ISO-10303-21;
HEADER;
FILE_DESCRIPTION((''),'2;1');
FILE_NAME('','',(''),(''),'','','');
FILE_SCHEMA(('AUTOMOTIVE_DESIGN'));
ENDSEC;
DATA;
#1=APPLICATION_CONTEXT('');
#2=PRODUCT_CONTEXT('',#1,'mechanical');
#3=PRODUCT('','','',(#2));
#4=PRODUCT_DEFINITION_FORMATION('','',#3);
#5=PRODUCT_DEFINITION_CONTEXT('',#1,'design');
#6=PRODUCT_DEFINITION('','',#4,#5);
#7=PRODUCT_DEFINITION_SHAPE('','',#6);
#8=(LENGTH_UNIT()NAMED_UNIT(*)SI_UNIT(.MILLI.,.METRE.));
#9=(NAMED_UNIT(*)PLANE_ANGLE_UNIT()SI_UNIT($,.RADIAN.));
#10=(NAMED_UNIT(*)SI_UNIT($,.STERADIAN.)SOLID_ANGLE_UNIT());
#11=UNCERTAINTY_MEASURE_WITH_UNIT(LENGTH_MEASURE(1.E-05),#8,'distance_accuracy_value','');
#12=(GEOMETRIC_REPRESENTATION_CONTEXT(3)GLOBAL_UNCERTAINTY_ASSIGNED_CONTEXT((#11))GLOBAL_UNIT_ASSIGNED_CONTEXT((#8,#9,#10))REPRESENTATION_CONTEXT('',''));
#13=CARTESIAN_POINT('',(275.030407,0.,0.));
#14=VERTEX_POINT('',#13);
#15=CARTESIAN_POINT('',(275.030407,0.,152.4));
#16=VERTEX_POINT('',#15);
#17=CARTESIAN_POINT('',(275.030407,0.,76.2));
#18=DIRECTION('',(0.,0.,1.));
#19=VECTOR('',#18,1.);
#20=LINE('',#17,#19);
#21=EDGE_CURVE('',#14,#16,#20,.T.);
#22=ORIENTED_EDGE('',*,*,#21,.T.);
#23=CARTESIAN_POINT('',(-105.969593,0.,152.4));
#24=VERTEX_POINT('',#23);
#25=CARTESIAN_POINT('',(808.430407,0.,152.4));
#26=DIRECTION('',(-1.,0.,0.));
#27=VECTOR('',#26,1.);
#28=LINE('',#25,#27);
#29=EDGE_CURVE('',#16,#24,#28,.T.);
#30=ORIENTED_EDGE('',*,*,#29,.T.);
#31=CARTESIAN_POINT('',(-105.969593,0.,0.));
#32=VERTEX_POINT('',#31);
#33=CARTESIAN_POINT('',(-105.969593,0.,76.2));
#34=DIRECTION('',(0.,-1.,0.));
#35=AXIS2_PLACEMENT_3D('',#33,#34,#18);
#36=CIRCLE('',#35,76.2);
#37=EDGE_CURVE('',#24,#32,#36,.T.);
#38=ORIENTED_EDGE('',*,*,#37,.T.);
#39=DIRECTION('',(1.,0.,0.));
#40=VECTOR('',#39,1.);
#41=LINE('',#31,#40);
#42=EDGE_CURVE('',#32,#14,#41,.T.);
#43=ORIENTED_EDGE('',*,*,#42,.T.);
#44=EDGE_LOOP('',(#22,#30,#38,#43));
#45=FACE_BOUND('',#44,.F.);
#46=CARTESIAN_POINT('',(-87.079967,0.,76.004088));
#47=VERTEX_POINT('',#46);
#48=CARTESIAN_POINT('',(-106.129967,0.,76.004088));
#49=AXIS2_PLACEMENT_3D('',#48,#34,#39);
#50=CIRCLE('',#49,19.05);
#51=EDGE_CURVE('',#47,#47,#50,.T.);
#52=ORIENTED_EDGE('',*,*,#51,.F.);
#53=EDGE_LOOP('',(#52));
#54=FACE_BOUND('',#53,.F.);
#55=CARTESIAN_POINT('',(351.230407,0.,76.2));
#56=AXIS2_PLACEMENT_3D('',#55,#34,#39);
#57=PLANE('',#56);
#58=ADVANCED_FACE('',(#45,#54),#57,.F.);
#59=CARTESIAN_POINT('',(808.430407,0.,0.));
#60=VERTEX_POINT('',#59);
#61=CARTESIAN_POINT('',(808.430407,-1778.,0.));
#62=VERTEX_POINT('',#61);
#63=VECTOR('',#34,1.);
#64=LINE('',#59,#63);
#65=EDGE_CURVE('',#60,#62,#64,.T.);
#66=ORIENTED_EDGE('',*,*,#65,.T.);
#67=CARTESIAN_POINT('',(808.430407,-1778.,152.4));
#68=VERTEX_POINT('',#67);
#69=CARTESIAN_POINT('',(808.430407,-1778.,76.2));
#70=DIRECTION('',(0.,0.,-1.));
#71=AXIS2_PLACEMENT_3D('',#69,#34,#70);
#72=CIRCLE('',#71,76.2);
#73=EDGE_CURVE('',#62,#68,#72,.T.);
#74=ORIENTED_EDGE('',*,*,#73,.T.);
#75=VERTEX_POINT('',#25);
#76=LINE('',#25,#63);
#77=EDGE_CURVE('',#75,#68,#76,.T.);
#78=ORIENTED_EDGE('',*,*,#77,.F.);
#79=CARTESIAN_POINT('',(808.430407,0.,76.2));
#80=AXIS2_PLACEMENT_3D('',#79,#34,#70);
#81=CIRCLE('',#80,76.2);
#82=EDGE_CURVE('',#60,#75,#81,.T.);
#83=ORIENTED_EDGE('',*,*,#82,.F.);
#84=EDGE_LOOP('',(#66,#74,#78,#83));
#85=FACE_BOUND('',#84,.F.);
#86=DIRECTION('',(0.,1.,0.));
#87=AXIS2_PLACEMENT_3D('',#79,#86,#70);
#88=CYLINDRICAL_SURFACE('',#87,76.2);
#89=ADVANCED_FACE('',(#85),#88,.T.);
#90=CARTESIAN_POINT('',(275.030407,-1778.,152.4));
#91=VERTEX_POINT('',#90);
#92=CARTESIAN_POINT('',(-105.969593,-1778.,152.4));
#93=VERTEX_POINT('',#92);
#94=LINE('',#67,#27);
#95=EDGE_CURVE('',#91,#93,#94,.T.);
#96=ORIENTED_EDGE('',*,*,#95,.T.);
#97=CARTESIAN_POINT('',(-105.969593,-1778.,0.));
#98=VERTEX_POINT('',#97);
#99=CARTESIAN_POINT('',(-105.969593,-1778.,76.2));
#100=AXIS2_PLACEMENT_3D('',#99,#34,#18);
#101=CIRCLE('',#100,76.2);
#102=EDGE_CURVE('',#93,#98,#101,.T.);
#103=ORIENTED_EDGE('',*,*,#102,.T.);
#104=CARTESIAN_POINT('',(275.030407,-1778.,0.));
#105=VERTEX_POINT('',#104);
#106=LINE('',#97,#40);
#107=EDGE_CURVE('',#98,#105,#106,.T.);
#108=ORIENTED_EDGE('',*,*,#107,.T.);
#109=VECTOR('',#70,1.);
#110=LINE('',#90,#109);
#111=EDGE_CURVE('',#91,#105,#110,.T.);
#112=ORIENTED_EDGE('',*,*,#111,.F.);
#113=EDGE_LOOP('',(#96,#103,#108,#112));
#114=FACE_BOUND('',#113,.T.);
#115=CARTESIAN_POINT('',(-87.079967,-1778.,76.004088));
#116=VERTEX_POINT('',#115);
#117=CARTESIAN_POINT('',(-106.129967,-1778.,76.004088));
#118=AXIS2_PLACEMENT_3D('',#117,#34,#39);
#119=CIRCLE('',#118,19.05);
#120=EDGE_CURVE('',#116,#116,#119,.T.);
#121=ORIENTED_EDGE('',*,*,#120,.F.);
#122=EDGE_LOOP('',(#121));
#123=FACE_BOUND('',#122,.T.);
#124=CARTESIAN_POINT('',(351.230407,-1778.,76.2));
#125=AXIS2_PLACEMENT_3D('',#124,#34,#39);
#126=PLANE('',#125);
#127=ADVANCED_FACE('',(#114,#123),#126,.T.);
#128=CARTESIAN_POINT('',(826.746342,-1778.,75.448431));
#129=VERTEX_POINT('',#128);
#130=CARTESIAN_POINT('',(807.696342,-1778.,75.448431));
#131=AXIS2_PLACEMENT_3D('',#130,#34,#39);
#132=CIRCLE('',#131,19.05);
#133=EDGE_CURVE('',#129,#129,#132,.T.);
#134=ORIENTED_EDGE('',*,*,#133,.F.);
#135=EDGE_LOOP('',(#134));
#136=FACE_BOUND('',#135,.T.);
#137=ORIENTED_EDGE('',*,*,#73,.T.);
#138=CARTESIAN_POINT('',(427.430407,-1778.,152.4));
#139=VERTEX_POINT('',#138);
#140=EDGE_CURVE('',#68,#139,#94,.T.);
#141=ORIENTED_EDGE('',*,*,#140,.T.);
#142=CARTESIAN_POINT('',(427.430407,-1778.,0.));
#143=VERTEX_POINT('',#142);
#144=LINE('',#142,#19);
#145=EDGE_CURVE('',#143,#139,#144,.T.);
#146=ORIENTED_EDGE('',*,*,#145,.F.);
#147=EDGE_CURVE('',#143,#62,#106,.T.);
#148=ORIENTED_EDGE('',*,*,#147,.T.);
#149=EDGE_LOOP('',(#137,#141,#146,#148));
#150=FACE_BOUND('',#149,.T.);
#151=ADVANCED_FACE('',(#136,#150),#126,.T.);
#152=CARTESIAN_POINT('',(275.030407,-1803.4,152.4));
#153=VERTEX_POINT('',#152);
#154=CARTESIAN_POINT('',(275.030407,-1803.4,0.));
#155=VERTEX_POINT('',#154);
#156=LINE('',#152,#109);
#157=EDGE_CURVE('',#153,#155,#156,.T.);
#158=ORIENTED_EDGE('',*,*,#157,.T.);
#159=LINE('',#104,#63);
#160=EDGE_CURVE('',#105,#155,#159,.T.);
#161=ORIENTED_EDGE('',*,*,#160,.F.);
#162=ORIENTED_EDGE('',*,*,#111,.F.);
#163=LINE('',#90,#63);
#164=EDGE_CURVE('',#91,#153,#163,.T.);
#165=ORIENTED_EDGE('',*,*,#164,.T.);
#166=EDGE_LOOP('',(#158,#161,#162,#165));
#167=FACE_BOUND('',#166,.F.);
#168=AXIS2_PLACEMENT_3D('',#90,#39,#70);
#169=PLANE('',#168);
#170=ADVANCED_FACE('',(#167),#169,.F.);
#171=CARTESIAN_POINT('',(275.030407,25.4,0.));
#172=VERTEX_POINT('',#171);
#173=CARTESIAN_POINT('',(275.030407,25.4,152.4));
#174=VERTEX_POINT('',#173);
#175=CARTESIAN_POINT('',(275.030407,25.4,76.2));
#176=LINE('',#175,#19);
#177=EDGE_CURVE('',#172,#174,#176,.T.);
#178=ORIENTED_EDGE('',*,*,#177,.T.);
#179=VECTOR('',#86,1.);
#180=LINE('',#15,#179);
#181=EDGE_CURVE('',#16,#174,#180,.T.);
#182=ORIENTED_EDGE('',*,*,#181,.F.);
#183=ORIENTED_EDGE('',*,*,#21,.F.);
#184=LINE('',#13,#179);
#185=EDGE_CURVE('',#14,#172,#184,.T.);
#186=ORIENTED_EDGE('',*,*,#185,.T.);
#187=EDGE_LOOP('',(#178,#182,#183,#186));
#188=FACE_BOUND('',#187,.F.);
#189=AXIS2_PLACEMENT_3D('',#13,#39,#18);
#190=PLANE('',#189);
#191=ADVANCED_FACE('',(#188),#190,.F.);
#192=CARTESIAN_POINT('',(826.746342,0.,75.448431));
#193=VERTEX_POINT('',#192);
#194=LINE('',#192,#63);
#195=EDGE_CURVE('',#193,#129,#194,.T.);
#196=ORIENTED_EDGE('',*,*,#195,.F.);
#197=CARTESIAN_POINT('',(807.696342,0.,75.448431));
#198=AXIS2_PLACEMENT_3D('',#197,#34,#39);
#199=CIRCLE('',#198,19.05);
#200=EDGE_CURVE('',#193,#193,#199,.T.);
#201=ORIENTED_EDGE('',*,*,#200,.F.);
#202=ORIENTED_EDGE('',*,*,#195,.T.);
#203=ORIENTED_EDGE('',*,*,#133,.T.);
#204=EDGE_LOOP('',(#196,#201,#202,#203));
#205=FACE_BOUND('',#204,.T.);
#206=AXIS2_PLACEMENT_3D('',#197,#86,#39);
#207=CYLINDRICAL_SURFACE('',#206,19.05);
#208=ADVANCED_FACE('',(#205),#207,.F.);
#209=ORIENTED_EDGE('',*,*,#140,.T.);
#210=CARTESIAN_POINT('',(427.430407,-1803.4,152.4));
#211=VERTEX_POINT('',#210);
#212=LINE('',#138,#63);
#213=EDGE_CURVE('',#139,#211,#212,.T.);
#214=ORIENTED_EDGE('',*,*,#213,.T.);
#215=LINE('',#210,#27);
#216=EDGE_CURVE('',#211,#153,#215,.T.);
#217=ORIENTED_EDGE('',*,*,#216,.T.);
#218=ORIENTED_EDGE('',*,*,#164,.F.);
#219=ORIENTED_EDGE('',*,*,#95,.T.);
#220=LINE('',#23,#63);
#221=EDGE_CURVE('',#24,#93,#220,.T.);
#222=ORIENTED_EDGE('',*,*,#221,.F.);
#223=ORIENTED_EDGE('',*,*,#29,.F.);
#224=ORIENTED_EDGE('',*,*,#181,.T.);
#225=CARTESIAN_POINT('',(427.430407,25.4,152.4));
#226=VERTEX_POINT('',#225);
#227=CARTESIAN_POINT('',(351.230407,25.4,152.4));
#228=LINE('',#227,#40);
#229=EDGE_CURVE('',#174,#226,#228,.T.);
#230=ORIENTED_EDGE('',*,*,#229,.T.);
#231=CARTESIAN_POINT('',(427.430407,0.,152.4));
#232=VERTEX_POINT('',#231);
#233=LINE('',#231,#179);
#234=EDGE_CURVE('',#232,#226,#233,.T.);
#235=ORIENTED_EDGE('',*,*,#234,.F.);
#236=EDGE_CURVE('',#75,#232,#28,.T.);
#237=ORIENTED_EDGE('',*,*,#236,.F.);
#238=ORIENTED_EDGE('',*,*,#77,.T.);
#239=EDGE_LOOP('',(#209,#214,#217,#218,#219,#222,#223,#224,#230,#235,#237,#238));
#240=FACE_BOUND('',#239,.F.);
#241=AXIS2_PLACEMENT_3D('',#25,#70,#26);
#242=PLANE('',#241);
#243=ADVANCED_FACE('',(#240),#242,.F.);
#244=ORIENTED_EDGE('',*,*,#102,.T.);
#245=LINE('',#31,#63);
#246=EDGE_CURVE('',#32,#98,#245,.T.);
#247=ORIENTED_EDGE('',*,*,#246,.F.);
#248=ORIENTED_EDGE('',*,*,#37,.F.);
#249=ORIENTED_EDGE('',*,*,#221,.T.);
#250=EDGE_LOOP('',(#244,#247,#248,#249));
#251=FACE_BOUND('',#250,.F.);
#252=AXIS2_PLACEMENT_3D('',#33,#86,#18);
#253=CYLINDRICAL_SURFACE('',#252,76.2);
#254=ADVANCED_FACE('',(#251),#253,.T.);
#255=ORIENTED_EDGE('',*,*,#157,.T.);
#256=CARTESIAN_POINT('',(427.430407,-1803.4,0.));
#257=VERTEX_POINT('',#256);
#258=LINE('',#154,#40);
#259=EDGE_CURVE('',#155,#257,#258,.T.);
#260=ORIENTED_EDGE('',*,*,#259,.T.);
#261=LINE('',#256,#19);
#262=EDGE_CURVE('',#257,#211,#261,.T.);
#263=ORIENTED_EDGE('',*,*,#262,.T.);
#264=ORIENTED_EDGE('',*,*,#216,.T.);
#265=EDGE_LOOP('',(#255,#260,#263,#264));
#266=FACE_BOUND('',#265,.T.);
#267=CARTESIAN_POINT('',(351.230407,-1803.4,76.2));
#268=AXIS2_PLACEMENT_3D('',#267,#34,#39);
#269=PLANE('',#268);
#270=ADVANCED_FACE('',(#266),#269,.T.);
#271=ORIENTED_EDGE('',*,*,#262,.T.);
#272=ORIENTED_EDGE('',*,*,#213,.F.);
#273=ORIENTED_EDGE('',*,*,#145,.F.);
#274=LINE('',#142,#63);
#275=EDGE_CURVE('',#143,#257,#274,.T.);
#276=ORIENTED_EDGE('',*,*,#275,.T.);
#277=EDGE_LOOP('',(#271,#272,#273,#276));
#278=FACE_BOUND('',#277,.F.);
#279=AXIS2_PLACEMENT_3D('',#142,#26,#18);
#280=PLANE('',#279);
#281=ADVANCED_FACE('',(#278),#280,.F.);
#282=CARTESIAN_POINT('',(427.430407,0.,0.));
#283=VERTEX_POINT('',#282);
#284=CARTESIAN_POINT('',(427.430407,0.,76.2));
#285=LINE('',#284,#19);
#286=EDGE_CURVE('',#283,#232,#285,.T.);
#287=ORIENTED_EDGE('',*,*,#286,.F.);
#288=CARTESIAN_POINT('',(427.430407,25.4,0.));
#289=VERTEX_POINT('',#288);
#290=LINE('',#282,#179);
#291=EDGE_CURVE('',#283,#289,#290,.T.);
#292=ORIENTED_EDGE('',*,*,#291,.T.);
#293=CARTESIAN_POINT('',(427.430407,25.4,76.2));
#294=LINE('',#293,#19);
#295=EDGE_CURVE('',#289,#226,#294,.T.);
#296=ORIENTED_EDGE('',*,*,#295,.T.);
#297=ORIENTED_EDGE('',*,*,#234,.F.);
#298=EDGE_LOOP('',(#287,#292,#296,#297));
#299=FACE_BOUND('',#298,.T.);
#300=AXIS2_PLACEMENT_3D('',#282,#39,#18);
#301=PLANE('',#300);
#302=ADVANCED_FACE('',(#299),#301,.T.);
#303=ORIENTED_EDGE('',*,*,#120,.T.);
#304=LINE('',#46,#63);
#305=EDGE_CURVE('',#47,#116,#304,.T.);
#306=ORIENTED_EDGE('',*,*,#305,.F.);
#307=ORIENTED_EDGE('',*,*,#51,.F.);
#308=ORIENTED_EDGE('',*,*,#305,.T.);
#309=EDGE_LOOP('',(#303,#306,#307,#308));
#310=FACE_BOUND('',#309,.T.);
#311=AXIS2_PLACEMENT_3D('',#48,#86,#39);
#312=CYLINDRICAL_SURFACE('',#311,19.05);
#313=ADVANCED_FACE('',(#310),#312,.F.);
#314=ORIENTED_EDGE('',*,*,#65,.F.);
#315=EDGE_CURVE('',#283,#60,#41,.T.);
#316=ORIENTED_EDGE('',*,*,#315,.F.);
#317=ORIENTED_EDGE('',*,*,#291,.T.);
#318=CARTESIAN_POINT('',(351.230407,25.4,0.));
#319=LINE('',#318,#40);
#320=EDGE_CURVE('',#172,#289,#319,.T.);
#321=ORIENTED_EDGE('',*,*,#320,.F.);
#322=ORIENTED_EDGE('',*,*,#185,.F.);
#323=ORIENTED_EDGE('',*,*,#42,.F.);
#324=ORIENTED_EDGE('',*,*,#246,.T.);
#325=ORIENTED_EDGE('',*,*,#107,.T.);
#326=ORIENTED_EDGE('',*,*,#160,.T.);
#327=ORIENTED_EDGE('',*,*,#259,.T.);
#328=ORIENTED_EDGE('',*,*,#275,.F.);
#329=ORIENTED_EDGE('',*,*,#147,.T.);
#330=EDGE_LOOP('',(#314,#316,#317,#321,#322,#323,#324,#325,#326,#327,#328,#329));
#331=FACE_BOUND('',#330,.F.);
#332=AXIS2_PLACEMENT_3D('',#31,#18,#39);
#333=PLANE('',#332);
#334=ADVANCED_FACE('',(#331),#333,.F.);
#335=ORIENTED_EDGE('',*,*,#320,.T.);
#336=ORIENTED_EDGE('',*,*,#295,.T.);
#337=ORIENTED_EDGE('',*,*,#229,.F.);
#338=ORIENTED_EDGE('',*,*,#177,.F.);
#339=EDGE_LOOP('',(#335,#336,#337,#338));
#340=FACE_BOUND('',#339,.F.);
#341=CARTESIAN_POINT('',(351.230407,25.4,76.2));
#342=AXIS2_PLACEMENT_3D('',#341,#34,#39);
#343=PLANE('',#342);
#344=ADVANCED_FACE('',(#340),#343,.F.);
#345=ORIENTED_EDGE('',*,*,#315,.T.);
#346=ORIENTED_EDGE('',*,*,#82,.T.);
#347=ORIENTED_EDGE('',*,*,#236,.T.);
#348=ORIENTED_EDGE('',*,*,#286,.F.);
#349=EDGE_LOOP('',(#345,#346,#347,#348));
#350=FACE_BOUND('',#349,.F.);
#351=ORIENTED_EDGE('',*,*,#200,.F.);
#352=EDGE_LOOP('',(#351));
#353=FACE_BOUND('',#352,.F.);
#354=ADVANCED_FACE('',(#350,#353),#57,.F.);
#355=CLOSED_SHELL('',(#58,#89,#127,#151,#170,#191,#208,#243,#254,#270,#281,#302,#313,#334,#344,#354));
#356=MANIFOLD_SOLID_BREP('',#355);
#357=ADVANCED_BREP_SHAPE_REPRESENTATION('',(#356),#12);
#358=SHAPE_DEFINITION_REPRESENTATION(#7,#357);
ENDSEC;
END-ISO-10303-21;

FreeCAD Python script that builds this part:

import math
import FreeCAD as App
import Part
import Sketcher
from FreeCAD import Vector
Q = App.Units.Quantity


def add_polygon(sketch, points):
    """Adds a closed chain of lines whose ends are joined by coincident constraints."""
    first, n = sketch.GeometryCount, len(points)
    for a, b in zip(points, points[1:] + points[:1]):
        sketch.addGeometry(Part.LineSegment(App.Vector(*a, 0), App.Vector(*b, 0)), False)
    for i in range(n):
        sketch.addConstraint(Sketcher.Constraint("Coincident", first + i, 2, first + (i + 1) % n, 1))

doc = App.newDocument("Part")
body = doc.addObject("PartDesign::Body", "Body")

sketch1 = doc.addObject("Sketcher::SketchObject", "Sketch")
body.addObject(sketch1)
sketch1.AttachmentSupport = (doc.XZ_Plane, [""])
sketch1.MapMode = "FlatFace"
sketch1.addGeometry([
    Part.ArcOfCircle(Part.Circle(Vector(808, 76, 0), Vector(0, 0, 1), 76), math.radians(-90), math.radians(90)),
    Part.LineSegment(Vector(808, 152, 0), Vector(-106, 152, 0)),
    Part.ArcOfCircle(Part.Circle(Vector(-106, 76, 0), Vector(0, 0, 1), 76), math.radians(90), math.radians(270)),
    Part.LineSegment(Vector(-106, 0, 0), Vector(808, 0, 0)),
    Part.Circle(Vector(808, 75, 0), Vector(0, 0, 1), 19),
    Part.Circle(Vector(-106, 76, 0), Vector(0, 0, 1), 19),
], False)
sketch1.addConstraint([
    Sketcher.Constraint("Tangent", 0, 2, 1, 1),
    Sketcher.Constraint("Tangent", 1, 2, 2, 1),
    Sketcher.Constraint("Tangent", 2, 2, 3, 1),
    Sketcher.Constraint("Tangent", 3, 2, 0, 1),
    Sketcher.Constraint("Horizontal", 1),
    Sketcher.Constraint("Horizontal", 3),
    Sketcher.Constraint("Equal", 4, 5),
    Sketcher.Constraint("PointOnObject", 2, 2, -1),
    Sketcher.Constraint("Radius", 0, Q("3 in")),
    Sketcher.Constraint("Diameter", 4, Q("1.5 in")),
    Sketcher.Constraint("DistanceX", 1, 2, 1, 1, Q("36 in")),
    Sketcher.Constraint("DistanceX", 4, 3, 0, 3, Q("0.0289002 in")),
    Sketcher.Constraint("DistanceX", -1, 1, 4, 3, 807.696342),
    Sketcher.Constraint("DistanceY", -1, 1, 4, 3, 75.448431),
    Sketcher.Constraint("DistanceX", 5, 3, 4, 3, 913.826309),
    Sketcher.Constraint("DistanceY", -1, 1, 5, 3, 76.004088),
])
pad1 = doc.addObject("PartDesign::Pad", "Pad")
body.addObject(pad1)
pad1.Profile = sketch1
pad1.Length = Q("70 in")

sketch2 = doc.addObject("Sketcher::SketchObject", "Sketch001")
body.addObject(sketch2)
sketch2.AttachmentSupport = (doc.XZ_Plane, [""])
sketch2.MapMode = "FlatFace"
sketch2.AttachmentOffset = App.Placement(Vector(0, 0, 70 * 25.4), App.Rotation())
add_polygon(sketch2, [(427, 152), (275, 152), (275, 0), (427, 0)])
sketch2.addConstraint([
    Sketcher.Constraint("Horizontal", 0),
    Sketcher.Constraint("Vertical", 1),
    Sketcher.Constraint("Horizontal", 2),
    Sketcher.Constraint("Vertical", 3),
    Sketcher.Constraint("PointOnObject", 1, 2, -1),
    Sketcher.Constraint("Equal", 2, 1),
    Sketcher.Constraint("DistanceX", 0, 2, 0, 1, Q("6 in")),
    Sketcher.Constraint("DistanceX", -1, 1, 0, 2, 275.030407),
])
pad2 = doc.addObject("PartDesign::Pad", "Pad001")
body.addObject(pad2)
pad2.Profile = sketch2
pad2.Length = Q("1 in")

sketch3 = doc.addObject("Sketcher::SketchObject", "Sketch002")
body.addObject(sketch3)
sketch3.AttachmentSupport = (doc.XZ_Plane, [""])
sketch3.MapMode = "FlatFace"
add_polygon(sketch3, [(275, 152), (275, 0), (427, 0), (427, 152)])
sketch3.addConstraint([
    Sketcher.Constraint("Vertical", 0),
    Sketcher.Constraint("Horizontal", 1),
    Sketcher.Constraint("Vertical", 2),
    Sketcher.Constraint("Horizontal", 3),
    Sketcher.Constraint("PointOnObject", 0, 2, -1),
    Sketcher.Constraint("Equal", 3, 0),
    Sketcher.Constraint("DistanceX", 1, 1, 1, 2, Q("6 in")),
    Sketcher.Constraint("DistanceX", -1, 1, 0, 2, 275.030407),
])
pad3 = doc.addObject("PartDesign::Pad", "Pad002")
body.addObject(pad3)
pad3.Profile = sketch3
pad3.Length = Q("1 in")
pad3.Reversed = True

doc.recompute()
